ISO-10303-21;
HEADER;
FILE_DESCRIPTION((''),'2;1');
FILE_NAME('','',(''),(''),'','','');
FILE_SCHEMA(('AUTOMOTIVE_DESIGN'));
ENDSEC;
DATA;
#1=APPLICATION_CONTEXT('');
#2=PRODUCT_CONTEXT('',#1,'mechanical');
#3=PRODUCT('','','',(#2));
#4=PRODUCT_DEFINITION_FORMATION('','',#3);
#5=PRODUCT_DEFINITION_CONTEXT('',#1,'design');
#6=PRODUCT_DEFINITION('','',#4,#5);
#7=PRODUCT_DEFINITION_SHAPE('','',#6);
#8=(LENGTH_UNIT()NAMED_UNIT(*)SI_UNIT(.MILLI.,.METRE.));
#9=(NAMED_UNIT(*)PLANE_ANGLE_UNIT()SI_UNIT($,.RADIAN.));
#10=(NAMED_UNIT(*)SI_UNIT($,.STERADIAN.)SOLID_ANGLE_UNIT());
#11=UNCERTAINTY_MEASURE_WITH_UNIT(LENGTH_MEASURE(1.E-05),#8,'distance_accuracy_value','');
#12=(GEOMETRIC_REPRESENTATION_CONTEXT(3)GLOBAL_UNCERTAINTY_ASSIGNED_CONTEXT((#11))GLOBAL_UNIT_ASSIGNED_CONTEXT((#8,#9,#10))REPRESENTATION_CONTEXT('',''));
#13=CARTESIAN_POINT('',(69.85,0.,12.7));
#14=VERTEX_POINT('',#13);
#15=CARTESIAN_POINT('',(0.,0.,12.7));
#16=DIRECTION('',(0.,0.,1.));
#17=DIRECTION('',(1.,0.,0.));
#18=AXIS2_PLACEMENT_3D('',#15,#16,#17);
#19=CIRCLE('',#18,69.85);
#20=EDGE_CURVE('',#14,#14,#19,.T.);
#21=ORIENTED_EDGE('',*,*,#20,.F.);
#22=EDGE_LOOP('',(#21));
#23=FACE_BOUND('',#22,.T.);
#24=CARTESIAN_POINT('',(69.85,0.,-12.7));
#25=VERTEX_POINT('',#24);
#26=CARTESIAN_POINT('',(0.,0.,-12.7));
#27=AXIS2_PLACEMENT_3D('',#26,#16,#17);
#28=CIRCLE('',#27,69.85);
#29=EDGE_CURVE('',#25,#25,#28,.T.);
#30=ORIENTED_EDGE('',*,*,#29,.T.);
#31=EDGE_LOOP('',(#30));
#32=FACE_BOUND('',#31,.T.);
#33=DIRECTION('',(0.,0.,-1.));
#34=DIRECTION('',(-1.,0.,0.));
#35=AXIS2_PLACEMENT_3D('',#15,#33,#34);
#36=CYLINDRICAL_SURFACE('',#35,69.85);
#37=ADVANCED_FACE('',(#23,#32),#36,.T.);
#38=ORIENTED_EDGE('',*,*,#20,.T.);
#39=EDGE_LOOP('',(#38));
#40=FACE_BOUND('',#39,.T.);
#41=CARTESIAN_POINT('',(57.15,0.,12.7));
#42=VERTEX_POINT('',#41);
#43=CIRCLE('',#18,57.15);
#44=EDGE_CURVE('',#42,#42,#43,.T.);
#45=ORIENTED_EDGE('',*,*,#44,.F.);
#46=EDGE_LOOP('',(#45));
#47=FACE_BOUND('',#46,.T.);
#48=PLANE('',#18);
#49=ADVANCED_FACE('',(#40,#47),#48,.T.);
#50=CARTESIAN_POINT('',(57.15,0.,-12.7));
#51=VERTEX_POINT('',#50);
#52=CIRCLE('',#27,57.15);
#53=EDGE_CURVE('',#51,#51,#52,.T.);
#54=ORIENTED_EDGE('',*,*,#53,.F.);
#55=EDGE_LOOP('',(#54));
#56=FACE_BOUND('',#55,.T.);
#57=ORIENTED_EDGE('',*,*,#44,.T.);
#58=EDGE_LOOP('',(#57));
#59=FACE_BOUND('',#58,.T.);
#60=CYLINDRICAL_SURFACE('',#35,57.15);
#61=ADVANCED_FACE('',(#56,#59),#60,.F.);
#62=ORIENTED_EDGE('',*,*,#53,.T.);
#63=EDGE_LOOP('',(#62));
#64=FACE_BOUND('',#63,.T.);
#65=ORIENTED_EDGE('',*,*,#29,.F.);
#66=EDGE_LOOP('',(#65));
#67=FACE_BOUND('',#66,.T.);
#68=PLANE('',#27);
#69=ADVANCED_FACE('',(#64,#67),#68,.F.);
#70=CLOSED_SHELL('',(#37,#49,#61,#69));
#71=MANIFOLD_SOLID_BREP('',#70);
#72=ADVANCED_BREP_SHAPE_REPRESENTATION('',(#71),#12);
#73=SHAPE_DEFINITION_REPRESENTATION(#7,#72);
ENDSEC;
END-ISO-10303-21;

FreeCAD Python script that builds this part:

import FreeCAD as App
import Part
import Sketcher
Q = App.Units.Quantity

doc = App.newDocument("Part")
body = doc.addObject("PartDesign::Body", "Body")

# Sketch on XY plane
sketch1 = body.newObject("Sketcher::SketchObject", "Sketch")
sketch1.AttachmentSupport = (doc.getObject("XY_Plane"), [""])
sketch1.MapMode = "FlatFace"
sketch1.addGeometry([
    Part.Circle(App.Vector(0, 0, 0), App.Vector(0, 0, 1), 70),
    Part.Circle(App.Vector(0, 0, 0), App.Vector(0, 0, 1), 57),
], False)
sketch1.addConstraint([
    Sketcher.Constraint("Coincident", 0, 3, -1, 1),
    Sketcher.Constraint("Coincident", 1, 3, -1, 1),
    Sketcher.Constraint("Diameter", 0, Q("5.5 in")),
    Sketcher.Constraint("Diameter", 1, Q("4.5 in")),
])
pad1 = body.newObject("PartDesign::Pad", "Pad")
pad1.Profile = sketch1
pad1.Type = "TwoLengths"
pad1.Length = Q("0.5 in")
pad1.Length2 = Q("0.5 in")

doc.recompute()
